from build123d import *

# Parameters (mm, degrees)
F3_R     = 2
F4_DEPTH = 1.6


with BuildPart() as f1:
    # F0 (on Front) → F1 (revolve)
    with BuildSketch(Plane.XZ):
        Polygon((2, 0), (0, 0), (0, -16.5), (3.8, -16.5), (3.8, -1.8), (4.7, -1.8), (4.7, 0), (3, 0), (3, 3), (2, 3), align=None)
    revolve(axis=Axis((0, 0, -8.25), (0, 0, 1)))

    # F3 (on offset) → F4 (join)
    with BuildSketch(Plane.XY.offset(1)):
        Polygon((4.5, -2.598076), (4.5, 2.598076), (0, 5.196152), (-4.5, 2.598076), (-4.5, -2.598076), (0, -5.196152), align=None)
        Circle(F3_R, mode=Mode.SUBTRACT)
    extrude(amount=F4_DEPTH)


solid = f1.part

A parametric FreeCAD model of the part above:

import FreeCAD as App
import Part
import Sketcher
from FreeCAD import Vector
Q = App.Units.Quantity

doc = App.newDocument("Part")
body = doc.addObject("PartDesign::Body", "Body")

sketch1 = doc.addObject("Sketcher::SketchObject", "Sketch")
body.addObject(sketch1)
sketch1.AttachmentSupport = (doc.XZ_Plane, [""])
sketch1.MapMode = "FlatFace"
sketch1.addGeometry([
    Part.LineSegment(Vector(2, 0, 0), Vector(0, 0, 0)),
    Part.LineSegment(Vector(0, 0, 0), Vector(0, -16.5, 0)),
    Part.LineSegment(Vector(0, -16.5, 0), Vector(3.8, -16.5, 0)),
    Part.LineSegment(Vector(3.8, -16.5, 0), Vector(3.8, -1.8, 0)),
    Part.LineSegment(Vector(3.8, -1.8, 0), Vector(4.7, -1.8, 0)),
    Part.LineSegment(Vector(4.7, -1.8, 0), Vector(4.7, 0, 0)),
    Part.LineSegment(Vector(4.7, 0, 0), Vector(3, 0, 0)),
    Part.LineSegment(Vector(3, 0, 0), Vector(3, 3, 0)),
    Part.LineSegment(Vector(3, 3, 0), Vector(2, 3, 0)),
    Part.LineSegment(Vector(2, 3, 0), Vector(2, 0, 0)),
], False)
sketch1.addConstraint([
    Sketcher.Constraint("Coincident", 0, 2, 1, 1),
    Sketcher.Constraint("Coincident", 1, 2, 2, 1),
    Sketcher.Constraint("Coincident", 2, 2, 3, 1),
    Sketcher.Constraint("Coincident", 3, 2, 4, 1),
    Sketcher.Constraint("Coincident", 4, 2, 5, 1),
    Sketcher.Constraint("Coincident", 5, 2, 6, 1),
    Sketcher.Constraint("Coincident", 6, 2, 7, 1),
    Sketcher.Constraint("Coincident", 7, 2, 8, 1),
    Sketcher.Constraint("Coincident", 8, 2, 9, 1),
    Sketcher.Constraint("Coincident", 9, 2, 0, 1),
    Sketcher.Constraint("Horizontal", 0),
    Sketcher.Constraint("Vertical", 1),
    Sketcher.Constraint("Horizontal", 2),
    Sketcher.Constraint("Vertical", 3),
    Sketcher.Constraint("Horizontal", 4),
    Sketcher.Constraint("Vertical", 5),
    Sketcher.Constraint("Horizontal", 6),
    Sketcher.Constraint("Vertical", 7),
    Sketcher.Constraint("Horizontal", 8),
    Sketcher.Constraint("Vertical", 9),
    Sketcher.Constraint("Coincident", 0, 2, -1, 1),
    Sketcher.Constraint("PointOnObject", 5, 2, -1),
    Sketcher.Constraint("DistanceX", 0, 2, 0, 1, 2.0),
    Sketcher.Constraint("DistanceX", 8, 2, 8, 1, 1.0),
    Sketcher.Constraint("DistanceY", 7, 1, 7, 2, 3.0),
    Sketcher.Constraint("DistanceX", 2, 1, 2, 2, 3.8),
    Sketcher.Constraint("DistanceX", 4, 1, 4, 2, 0.9),
    Sketcher.Constraint("DistanceY", 1, 2, 1, 1, 16.5),
    Sketcher.Constraint("DistanceY", 3, 1, 3, 2, 14.7),
])
revolution = doc.addObject("PartDesign::Revolution", "Revolution")
body.addObject(revolution)
revolution.Profile = sketch1
revolution.ReferenceAxis = (sketch1, ["V_Axis"])
revolution.Angle = 360

sketch2 = doc.addObject("Sketcher::SketchObject", "Sketch001")
body.addObject(sketch2)
sketch2.AttachmentSupport = (doc.XY_Plane, [""])
sketch2.MapMode = "FlatFace"
sketch2.AttachmentOffset = App.Placement(Vector(0, 0, 1), App.Rotation())
sketch2.addGeometry([
    Part.LineSegment(Vector(4.5, -2.6, 0), Vector(4.5, 2.6, 0)),
    Part.LineSegment(Vector(4.5, 2.6, 0), Vector(0, 5.2, 0)),
    Part.LineSegment(Vector(0, 5.2, 0), Vector(-4.5, 2.6, 0)),
    Part.LineSegment(Vector(-4.5, 2.6, 0), Vector(-4.5, -2.6, 0)),
    Part.LineSegment(Vector(-4.5, -2.6, 0), Vector(0, -5.2, 0)),
    Part.LineSegment(Vector(0, -5.2, 0), Vector(4.5, -2.6, 0)),
    Part.Circle(Vector(0, 0, 0), Vector(0, 0, 1), 2),
], False)
sketch2.addConstraint([
    Sketcher.Constraint("Coincident", 0, 2, 1, 1),
    Sketcher.Constraint("Coincident", 1, 2, 2, 1),
    Sketcher.Constraint("Coincident", 2, 2, 3, 1),
    Sketcher.Constraint("Coincident", 3, 2, 4, 1),
    Sketcher.Constraint("Coincident", 4, 2, 5, 1),
    Sketcher.Constraint("Coincident", 5, 2, 0, 1),
    Sketcher.Constraint("Vertical", 0),
    Sketcher.Constraint("Vertical", 3),
    Sketcher.Constraint("Coincident", 6, 3, -1, 1),
    Sketcher.Constraint("Symmetric", 0, 2, 3, 2, -1, 1),
    Sketcher.Constraint("Symmetric", 1, 2, 4, 2, -1, 1),
    Sketcher.Constraint("PointOnObject", 1, 2, -2),
    Sketcher.Constraint("Parallel", 2, 5),
    Sketcher.Constraint("Horizontal", 0, 2, 2, 2),
    Sketcher.Constraint("Diameter", 6, 4.0),
    Sketcher.Constraint("Angle", 1, Q("150.000002 deg")),
    Sketcher.Constraint("DistanceX", 2, 2, 0, 2, 9.0),
    Sketcher.Constraint("DistanceY", 0, 1, 0, 2, 5.196152),
])
pad1 = doc.addObject("PartDesign::Pad", "Pad")
body.addObject(pad1)
pad1.Profile = sketch2
pad1.Length = 1.6

doc.recompute()
